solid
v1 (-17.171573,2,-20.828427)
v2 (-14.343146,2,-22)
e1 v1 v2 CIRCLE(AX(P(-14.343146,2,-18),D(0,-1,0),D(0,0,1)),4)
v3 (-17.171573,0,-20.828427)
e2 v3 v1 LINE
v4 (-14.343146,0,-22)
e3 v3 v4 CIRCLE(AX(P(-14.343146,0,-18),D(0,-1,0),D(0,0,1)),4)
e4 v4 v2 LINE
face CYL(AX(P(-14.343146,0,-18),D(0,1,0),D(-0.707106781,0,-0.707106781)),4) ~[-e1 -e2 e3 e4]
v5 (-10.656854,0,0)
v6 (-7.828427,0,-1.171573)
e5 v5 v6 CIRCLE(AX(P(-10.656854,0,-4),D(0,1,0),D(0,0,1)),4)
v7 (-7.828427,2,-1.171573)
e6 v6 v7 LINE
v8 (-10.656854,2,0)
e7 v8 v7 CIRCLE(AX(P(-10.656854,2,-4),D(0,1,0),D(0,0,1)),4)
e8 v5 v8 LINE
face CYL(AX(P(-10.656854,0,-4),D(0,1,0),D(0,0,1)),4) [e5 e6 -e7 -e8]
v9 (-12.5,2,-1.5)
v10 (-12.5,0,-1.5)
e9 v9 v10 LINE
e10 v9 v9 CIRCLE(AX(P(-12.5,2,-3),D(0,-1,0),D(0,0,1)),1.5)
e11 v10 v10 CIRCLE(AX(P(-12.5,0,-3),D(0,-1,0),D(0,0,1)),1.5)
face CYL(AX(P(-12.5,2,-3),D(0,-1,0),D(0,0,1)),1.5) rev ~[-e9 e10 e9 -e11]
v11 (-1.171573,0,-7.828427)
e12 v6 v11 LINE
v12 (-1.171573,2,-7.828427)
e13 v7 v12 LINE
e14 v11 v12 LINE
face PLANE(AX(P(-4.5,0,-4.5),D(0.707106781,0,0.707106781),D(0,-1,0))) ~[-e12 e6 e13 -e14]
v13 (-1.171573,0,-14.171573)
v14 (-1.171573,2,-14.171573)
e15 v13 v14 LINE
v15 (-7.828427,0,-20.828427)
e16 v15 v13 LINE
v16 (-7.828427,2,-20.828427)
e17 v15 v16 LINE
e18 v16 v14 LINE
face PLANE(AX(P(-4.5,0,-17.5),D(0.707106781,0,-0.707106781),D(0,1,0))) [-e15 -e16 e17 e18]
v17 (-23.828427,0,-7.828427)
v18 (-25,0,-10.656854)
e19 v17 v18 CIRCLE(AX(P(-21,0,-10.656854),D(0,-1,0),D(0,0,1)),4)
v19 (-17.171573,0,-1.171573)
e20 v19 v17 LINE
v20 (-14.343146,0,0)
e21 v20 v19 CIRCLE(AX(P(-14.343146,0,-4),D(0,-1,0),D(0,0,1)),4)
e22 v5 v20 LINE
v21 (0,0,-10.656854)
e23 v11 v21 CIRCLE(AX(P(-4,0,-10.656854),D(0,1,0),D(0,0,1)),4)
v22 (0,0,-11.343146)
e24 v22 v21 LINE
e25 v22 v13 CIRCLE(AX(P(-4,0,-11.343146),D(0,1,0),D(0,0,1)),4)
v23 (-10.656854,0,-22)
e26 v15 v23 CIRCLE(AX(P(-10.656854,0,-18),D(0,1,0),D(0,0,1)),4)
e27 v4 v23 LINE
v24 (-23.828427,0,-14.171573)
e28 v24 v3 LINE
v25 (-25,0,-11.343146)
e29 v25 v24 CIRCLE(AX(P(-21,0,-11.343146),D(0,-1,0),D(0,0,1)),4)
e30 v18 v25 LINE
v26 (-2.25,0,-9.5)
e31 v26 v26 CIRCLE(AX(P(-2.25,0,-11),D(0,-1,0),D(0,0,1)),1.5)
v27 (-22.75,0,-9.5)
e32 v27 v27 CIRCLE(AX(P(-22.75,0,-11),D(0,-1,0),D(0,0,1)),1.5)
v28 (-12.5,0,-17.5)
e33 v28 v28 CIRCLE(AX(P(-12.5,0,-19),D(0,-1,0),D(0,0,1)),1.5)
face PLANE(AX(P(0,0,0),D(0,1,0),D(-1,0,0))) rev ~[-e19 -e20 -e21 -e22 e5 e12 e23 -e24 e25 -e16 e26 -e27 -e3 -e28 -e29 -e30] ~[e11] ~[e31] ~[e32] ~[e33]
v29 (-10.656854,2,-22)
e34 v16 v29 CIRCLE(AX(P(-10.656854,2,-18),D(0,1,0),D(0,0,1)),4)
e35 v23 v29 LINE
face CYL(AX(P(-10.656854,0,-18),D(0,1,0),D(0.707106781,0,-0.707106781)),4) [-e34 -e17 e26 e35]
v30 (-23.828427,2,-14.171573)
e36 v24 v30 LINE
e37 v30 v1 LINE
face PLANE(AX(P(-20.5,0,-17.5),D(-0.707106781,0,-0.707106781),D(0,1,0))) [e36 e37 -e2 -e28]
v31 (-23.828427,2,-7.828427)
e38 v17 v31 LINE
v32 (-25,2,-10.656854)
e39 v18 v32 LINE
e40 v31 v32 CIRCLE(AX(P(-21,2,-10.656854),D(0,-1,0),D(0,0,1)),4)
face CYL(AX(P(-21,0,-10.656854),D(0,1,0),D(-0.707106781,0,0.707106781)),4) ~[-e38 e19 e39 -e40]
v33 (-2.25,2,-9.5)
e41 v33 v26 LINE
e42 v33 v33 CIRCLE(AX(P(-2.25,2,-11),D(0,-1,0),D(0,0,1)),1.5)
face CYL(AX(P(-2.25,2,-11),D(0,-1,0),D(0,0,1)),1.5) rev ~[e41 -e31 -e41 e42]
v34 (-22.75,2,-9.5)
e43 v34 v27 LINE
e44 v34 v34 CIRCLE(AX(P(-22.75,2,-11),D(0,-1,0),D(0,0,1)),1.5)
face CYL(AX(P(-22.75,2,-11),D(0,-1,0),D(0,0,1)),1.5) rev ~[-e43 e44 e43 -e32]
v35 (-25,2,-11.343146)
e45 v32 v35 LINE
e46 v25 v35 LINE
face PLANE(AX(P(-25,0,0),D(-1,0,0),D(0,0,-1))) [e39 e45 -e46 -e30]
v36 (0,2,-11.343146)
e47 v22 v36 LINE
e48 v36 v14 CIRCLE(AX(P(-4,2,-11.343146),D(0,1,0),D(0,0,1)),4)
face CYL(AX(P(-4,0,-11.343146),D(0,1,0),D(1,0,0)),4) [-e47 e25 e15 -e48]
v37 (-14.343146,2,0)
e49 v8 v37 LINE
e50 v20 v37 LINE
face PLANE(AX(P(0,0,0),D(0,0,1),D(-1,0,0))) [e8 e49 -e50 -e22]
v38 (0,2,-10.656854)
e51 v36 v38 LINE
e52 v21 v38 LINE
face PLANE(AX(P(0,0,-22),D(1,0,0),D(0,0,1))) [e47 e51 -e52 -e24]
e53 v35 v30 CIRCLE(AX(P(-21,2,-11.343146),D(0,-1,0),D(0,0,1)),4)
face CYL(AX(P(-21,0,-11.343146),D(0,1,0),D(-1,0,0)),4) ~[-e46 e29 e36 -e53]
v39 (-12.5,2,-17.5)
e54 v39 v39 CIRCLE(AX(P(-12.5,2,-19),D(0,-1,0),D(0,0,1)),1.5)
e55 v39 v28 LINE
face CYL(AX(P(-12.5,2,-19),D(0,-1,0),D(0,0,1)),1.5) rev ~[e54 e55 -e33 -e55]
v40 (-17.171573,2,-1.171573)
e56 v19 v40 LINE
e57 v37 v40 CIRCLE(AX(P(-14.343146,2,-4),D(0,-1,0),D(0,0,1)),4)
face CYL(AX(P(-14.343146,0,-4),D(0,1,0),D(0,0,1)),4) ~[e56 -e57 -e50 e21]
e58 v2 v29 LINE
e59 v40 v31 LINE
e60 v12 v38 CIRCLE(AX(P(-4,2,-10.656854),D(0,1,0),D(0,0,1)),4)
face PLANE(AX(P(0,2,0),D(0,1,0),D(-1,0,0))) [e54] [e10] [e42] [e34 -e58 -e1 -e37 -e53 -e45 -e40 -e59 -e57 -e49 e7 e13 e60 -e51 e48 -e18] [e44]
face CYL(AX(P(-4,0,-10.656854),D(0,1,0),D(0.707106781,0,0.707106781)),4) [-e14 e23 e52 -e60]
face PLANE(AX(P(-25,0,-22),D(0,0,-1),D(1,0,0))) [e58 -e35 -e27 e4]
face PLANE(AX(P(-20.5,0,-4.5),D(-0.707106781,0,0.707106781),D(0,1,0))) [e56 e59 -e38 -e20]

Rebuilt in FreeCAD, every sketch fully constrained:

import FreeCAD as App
import Part
import Sketcher

V = App.Vector
Q = App.Units.Quantity


def edges_at(feature, points):
    """Names of the edges that pass closest to the given points."""
    edges = feature.Shape.Edges
    near = lambda p: min(range(len(edges)), key=lambda i: edges[i].distToShape(Part.Vertex(*p))[0])
    return sorted({f"Edge{near(p) + 1}" for p in points})

doc = App.newDocument("Part")
params = doc.addObject("Spreadsheet::Sheet", "Params")
for row, (alias, value) in enumerate([
    ("sketch1_width", "25 mm"),
    ("sketch1_height", "22 mm"),
    ("pad1_length", "2 mm"),
    ("chamfer_size", "9 mm"),
    ("fillet_radius", "4 mm"),
    ("sketch2_diameter", "3 mm"),
    ("hole_diameter", "3 mm"),
    ("hole_depth", "8 mm"),
    ("sketch3_diameter", "3 mm"),
    ("hole2_diameter", "3 mm"),
    ("hole2_depth", "8 mm"),
], start=1):
    params.set(f"A{row}", alias)
    params.set(f"B{row}", "=" + value)
    params.setAlias(f"B{row}", alias)

body = doc.addObject("PartDesign::Body", "Body")

sketch1 = body.newObject("Sketcher::SketchObject", "Sketch")
sketch1.AttachmentSupport = (doc.getObject("XZ_Plane"), [""])
sketch1.MapMode = "FlatFace"
sketch1.addGeometry(Part.LineSegment(V(-25, 0, 0), V(0, 0, 0)), False)
sketch1.addGeometry(Part.LineSegment(V(0, 0, 0), V(0, -22, 0)), False)
sketch1.addGeometry(Part.LineSegment(V(0, -22, 0), V(-25, -22, 0)), False)
sketch1.addGeometry(Part.LineSegment(V(-25, -22, 0), V(-25, 0, 0)), False)
sketch1.addConstraint(Sketcher.Constraint("Coincident", 0, 2, 1, 1))
sketch1.addConstraint(Sketcher.Constraint("Coincident", 1, 2, 2, 1))
sketch1.addConstraint(Sketcher.Constraint("Coincident", 2, 2, 3, 1))
sketch1.addConstraint(Sketcher.Constraint("Coincident", 3, 2, 0, 1))
sketch1.addConstraint(Sketcher.Constraint("Horizontal", 0))
sketch1.addConstraint(Sketcher.Constraint("Vertical", 1))
sketch1.addConstraint(Sketcher.Constraint("Horizontal", 2))
sketch1.addConstraint(Sketcher.Constraint("Vertical", 3))
sketch1.addConstraint(Sketcher.Constraint("Coincident", 0, 2, -1, 1))
sketch1.addConstraint(Sketcher.Constraint("DistanceX", 0, 1, 0, 2, Q("25 mm")))
sketch1.addConstraint(Sketcher.Constraint("DistanceY", 1, 2, 1, 1, Q("22 mm")))
sketch1.setExpression("Constraints[9]", "Params.sketch1_width")
sketch1.setExpression("Constraints[10]", "Params.sketch1_height")
pad1 = body.newObject("PartDesign::Pad", "Pad")
pad1.Profile = sketch1
pad1.setExpression("Length", "Params.pad1_length")
pad1.Reversed = True
doc.recompute()

chamfer = body.newObject("PartDesign::Chamfer", "Chamfer")
chamfer.Base = (pad1, edges_at(pad1, [
    (0, 1, 0),
    (0, 1, -22),
    (-25, 1, -22),
    (-25, 1, 0),
]))
chamfer.setExpression("Size", "Params.chamfer_size")
doc.recompute()

fillet = body.newObject("PartDesign::Fillet", "Fillet")
fillet.Base = (chamfer, edges_at(chamfer, [
    (-25, 1, -13),
    (-25, 1, -9),
    (-16, 1, 0),
    (-9, 1, 0),
    (0, 1, -9),
    (0, 1, -13),
    (-9, 1, -22),
    (-16, 1, -22),
]))
fillet.setExpression("Radius", "Params.fillet_radius")

sketch2 = body.newObject("Sketcher::SketchObject", "Sketch001")
sketch2.AttachmentSupport = (doc.getObject("XZ_Plane"), [""])
sketch2.MapMode = "FlatFace"
sketch2.AttachmentOffset = App.Placement(V(0, 0, -2), App.Rotation())
sketch2.addGeometry(Part.Circle(V(-12.5, -3, 0), V(0, 0, 1), 1.5), False)
sketch2.addGeometry(Part.Circle(V(-12.5, -19, 0), V(0, 0, 1), 1.5), False)
sketch2.addConstraint(Sketcher.Constraint("Equal", 0, 1))
sketch2.addConstraint(Sketcher.Constraint("Vertical", 0, 3, 1, 3))
sketch2.addConstraint(Sketcher.Constraint("Diameter", 0, Q("3 mm")))
sketch2.addConstraint(Sketcher.Constraint("DistanceY", 0, 3, -1, 1, Q("3 mm")))
sketch2.addConstraint(Sketcher.Constraint("DistanceY", 1, 3, -1, 1, Q("19 mm")))
sketch2.addConstraint(Sketcher.Constraint("DistanceX", 0, 3, -1, 1, Q("12.5 mm")))
sketch2.setExpression("Constraints[2]", "Params.sketch2_diameter")
doc.recompute()
hole = body.newObject("PartDesign::Hole", "Hole")
hole.Profile = sketch2
hole.ThreadType = "None"
hole.setExpression("Diameter", "Params.hole_diameter")
hole.DepthType = "Dimension"
hole.setExpression("Depth", "Params.hole_depth")
hole.DrillPoint = "Angled"
hole.DrillPointAngle = 118
hole.Reversed = True

sketch3 = body.newObject("Sketcher::SketchObject", "Sketch002")
sketch3.AttachmentSupport = (doc.getObject("XZ_Plane"), [""])
sketch3.MapMode = "FlatFace"
sketch3.AttachmentOffset = App.Placement(V(0, 0, -2), App.Rotation())
sketch3.addGeometry(Part.Circle(V(-2.25, -11, 0), V(0, 0, 1), 1.5), False)
sketch3.addGeometry(Part.Circle(V(-22.75, -11, 0), V(0, 0, 1), 1.5), False)
sketch3.addConstraint(Sketcher.Constraint("Equal", 0, 1))
sketch3.addConstraint(Sketcher.Constraint("Horizontal", 0, 3, 1, 3))
sketch3.addConstraint(Sketcher.Constraint("Diameter", 0, Q("3 mm")))
sketch3.addConstraint(Sketcher.Constraint("DistanceY", 0, 3, -1, 1, Q("11 mm")))
sketch3.addConstraint(Sketcher.Constraint("DistanceX", 1, 3, 0, 3, Q("20.5 mm")))
sketch3.addConstraint(Sketcher.Constraint("DistanceX", 0, 3, -1, 1, Q("2.25 mm")))
sketch3.setExpression("Constraints[2]", "Params.sketch3_diameter")
doc.recompute()
hole2 = body.newObject("PartDesign::Hole", "Hole001")
hole2.Profile = sketch3
hole2.ThreadType = "None"
hole2.setExpression("Diameter", "Params.hole2_diameter")
hole2.DepthType = "Dimension"
hole2.setExpression("Depth", "Params.hole2_depth")
hole2.DrillPoint = "Angled"
hole2.DrillPointAngle = 118
hole2.Reversed = True

doc.recompute()
